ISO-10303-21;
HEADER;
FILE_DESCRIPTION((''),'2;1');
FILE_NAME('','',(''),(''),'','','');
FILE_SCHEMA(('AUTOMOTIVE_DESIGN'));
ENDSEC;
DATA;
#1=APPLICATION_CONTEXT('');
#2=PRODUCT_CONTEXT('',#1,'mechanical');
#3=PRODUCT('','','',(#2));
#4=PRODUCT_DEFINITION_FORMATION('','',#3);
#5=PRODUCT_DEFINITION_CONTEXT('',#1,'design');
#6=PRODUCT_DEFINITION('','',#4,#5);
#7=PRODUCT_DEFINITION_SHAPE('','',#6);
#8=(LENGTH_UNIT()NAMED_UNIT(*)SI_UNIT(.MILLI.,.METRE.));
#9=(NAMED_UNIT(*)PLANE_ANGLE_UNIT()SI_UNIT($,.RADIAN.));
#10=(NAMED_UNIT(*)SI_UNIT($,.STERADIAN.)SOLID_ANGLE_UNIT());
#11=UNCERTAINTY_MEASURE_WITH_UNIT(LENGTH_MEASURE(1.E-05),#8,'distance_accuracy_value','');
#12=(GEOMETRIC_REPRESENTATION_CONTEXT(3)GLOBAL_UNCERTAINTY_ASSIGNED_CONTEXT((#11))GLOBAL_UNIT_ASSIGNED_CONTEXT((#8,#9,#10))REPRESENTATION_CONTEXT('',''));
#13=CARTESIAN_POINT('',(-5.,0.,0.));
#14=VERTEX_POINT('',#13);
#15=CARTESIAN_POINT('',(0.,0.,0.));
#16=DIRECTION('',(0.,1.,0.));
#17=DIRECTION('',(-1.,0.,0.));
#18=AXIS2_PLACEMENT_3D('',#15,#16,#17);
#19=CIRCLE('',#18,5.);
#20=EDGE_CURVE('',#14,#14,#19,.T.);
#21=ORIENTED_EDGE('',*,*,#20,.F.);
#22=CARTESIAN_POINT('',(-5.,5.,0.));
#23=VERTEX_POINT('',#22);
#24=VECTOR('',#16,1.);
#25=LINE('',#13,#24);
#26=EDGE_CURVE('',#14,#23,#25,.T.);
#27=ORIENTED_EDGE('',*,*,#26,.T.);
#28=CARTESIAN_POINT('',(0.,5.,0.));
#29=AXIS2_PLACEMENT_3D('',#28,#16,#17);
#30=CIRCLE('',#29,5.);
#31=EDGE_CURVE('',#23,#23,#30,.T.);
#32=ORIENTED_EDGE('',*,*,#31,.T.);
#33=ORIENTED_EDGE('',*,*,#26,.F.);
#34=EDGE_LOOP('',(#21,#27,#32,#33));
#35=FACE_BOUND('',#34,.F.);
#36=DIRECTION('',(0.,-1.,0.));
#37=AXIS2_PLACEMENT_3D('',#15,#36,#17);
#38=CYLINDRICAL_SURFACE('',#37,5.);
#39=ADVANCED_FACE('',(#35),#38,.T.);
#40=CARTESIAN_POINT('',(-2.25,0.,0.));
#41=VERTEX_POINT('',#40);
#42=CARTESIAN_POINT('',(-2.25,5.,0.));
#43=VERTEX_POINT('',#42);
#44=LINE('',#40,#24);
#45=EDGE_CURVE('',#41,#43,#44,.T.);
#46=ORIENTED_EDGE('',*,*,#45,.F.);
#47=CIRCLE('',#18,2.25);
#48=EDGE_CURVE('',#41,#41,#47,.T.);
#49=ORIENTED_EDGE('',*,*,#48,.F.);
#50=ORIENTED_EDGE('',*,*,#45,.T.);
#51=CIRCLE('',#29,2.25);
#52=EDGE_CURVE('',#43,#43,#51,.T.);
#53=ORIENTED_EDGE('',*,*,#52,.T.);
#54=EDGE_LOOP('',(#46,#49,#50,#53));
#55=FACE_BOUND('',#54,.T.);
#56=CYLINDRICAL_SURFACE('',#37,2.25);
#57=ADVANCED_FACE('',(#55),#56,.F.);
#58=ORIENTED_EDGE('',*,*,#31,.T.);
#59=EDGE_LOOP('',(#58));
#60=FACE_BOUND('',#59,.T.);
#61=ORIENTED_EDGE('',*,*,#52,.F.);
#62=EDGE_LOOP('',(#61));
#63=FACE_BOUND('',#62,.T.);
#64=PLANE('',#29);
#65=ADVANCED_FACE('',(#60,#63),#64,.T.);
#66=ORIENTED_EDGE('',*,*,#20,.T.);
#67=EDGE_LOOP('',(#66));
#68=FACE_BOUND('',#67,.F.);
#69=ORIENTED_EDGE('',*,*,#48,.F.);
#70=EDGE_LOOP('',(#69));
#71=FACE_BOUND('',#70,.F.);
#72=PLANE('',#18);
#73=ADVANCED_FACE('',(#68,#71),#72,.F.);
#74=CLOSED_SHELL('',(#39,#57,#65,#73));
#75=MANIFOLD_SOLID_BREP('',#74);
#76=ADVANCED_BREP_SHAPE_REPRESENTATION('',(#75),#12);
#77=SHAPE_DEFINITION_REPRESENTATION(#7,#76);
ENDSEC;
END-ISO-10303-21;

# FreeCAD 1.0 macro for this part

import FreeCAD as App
import Part
import Sketcher
from FreeCAD import Vector
Q = App.Units.Quantity

doc = App.newDocument("Part")
body = doc.addObject("PartDesign::Body", "Body")

# Sketch on XZ plane
sketch1 = doc.addObject("Sketcher::SketchObject", "Sketch")
body.addObject(sketch1)
sketch1.AttachmentSupport = (doc.XZ_Plane, [""])
sketch1.MapMode = "FlatFace"
sketch1.addGeometry([
    Part.Circle(Vector(0, 0, 0), Vector(0, 0, 1), 5),
    Part.Circle(Vector(0, 0, 0), Vector(0, 0, 1), 2.2),
], False)
sketch1.addConstraint([
    Sketcher.Constraint("Coincident", 0, 3, -1, 1),
    Sketcher.Constraint("Coincident", 1, 3, -1, 1),
    Sketcher.Constraint("Diameter", 0, Q("10 mm")),
    Sketcher.Constraint("Diameter", 1, Q("4.5 mm")),
])
pad1 = doc.addObject("PartDesign::Pad", "Pad")
body.addObject(pad1)
pad1.Profile = sketch1
pad1.Length = 5
pad1.Reversed = True

doc.recompute()
